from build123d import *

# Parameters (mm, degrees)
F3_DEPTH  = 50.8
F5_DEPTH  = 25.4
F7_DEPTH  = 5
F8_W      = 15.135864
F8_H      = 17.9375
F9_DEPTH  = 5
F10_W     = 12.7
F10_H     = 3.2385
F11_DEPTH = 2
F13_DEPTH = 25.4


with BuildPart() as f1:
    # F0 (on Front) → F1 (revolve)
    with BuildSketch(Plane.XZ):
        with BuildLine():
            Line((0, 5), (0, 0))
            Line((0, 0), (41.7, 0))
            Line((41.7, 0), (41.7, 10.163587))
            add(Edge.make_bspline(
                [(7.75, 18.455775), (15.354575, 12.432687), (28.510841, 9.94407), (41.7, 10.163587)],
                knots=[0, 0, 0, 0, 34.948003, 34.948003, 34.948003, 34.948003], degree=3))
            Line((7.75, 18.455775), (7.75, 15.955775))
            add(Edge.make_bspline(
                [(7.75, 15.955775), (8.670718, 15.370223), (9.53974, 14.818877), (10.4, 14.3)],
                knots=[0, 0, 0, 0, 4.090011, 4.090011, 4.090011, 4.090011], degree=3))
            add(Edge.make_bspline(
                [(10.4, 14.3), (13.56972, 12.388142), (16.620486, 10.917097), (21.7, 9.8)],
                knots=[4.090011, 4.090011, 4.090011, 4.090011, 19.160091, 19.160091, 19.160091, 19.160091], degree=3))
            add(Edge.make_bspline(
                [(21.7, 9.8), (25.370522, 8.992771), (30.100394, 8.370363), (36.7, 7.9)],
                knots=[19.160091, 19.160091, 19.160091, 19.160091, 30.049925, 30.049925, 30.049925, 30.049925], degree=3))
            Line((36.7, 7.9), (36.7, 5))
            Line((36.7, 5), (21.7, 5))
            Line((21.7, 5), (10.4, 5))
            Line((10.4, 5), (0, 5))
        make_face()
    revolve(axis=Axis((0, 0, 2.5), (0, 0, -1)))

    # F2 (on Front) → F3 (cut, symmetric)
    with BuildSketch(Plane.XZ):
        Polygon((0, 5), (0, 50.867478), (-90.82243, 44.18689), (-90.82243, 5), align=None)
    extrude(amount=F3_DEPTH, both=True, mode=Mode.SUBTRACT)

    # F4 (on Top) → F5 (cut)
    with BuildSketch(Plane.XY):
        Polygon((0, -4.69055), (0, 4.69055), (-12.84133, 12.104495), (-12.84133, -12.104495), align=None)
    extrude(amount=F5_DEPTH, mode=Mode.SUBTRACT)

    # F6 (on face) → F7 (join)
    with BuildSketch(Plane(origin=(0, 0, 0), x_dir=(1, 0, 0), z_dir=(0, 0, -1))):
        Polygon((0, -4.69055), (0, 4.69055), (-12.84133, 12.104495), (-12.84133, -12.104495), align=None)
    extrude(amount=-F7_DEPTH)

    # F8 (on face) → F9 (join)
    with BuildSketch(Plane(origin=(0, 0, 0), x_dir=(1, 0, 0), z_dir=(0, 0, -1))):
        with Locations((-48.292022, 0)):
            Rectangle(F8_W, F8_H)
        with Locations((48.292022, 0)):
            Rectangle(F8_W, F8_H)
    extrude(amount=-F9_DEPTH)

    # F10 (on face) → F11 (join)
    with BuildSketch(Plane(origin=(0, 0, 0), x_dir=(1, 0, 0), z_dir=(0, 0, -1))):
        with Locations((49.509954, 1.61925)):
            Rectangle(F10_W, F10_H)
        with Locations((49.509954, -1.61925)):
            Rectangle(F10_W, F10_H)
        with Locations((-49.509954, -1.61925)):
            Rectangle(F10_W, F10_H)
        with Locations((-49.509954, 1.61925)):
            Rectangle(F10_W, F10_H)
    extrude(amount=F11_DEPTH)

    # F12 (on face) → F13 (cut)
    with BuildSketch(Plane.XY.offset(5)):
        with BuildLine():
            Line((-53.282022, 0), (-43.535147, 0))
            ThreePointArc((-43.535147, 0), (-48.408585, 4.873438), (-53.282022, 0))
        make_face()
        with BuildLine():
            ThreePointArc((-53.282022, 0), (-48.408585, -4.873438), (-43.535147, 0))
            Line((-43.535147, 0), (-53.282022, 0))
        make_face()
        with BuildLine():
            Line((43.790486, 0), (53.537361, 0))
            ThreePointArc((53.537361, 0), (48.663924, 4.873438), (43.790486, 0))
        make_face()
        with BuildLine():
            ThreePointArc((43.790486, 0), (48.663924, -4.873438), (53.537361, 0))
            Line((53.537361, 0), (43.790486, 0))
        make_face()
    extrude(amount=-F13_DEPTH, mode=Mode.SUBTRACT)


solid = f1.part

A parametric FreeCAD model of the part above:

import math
import FreeCAD as App
import Part
import Sketcher
from FreeCAD import Vector
Q = App.Units.Quantity

doc = App.newDocument("Part")
body = doc.addObject("PartDesign::Body", "Body")

# Sketch on XZ plane
sketch1 = body.newObject("Sketcher::SketchObject", "Sketch")
sketch1.AttachmentSupport = (doc.getObject("XZ_Plane"), [""])
sketch1.MapMode = "FlatFace"
sketch1.addGeometry([
    Part.LineSegment(Vector(0, 5, 0), Vector(0, 0, 0)),  # 0
    Part.LineSegment(Vector(0, 0, 0), Vector(41.7, 0, 0)),  # 1
    Part.LineSegment(Vector(41.7, 0, 0), Vector(41.7, 10.163587, 0)),  # 2
    Part.BSplineCurve([Vector(7.75, 18.455775, 0), Vector(15.354575, 12.432687, 0), Vector(28.510841, 9.94407, 0), Vector(41.7, 10.163587, 0)], [4, 4], [0, 34.948003], False, 3, [1, 1, 1, 1], False),  # 3
    Part.LineSegment(Vector(7.75, 18.455775, 0), Vector(7.75, 15.955775, 0)),  # 4
    Part.BSplineCurve([Vector(7.75, 15.955775, 0), Vector(8.670718, 15.370223, 0), Vector(9.53974, 14.818877, 0), Vector(10.4, 14.3, 0)], [4, 4], [0, 4.090011], False, 3, [1, 1, 1, 1], False),  # 5
    Part.BSplineCurve([Vector(10.4, 14.3, 0), Vector(13.56972, 12.388142, 0), Vector(16.620486, 10.917097, 0), Vector(21.7, 9.8, 0)], [4, 4], [4.090011, 19.160091], False, 3, [1, 1, 1, 1], False),  # 6
    Part.BSplineCurve([Vector(21.7, 9.8, 0), Vector(25.370522, 8.992771, 0), Vector(30.100394, 8.370363, 0), Vector(36.7, 7.9, 0)], [4, 4], [19.160091, 30.049925], False, 3, [1, 1, 1, 1], False),  # 7
    Part.LineSegment(Vector(36.7, 7.9, 0), Vector(36.7, 5, 0)),  # 8
    Part.LineSegment(Vector(36.7, 5, 0), Vector(0, 5, 0)),  # 9
], False)
sketch1.addConstraint([
    Sketcher.Constraint("Block", 3),
    Sketcher.Constraint("Block", 5),
    Sketcher.Constraint("Block", 6),
    Sketcher.Constraint("Block", 7),
    Sketcher.Constraint("Coincident", 0, 2, 1, 1),
    Sketcher.Constraint("Coincident", 1, 2, 2, 1),
    Sketcher.Constraint("Coincident", 2, 2, 3, 2),
    Sketcher.Constraint("Coincident", 3, 1, 4, 1),
    Sketcher.Constraint("Coincident", 4, 2, 5, 1),
    Sketcher.Constraint("Coincident", 7, 2, 8, 1),
    Sketcher.Constraint("Coincident", 8, 2, 9, 1),
    Sketcher.Constraint("Coincident", 9, 2, 0, 1),
    Sketcher.Constraint("Vertical", 0),
    Sketcher.Constraint("Horizontal", 1),
    Sketcher.Constraint("Vertical", 2),
    Sketcher.Constraint("Vertical", 8),
    Sketcher.Constraint("Horizontal", 9),
    Sketcher.Constraint("Coincident", 0, 2, -1, 1),
    Sketcher.Constraint("DistanceY", 0, 2, 0, 1, 5.0),
])
revolution = body.newObject("PartDesign::Revolution", "Revolution")
revolution.Profile = sketch1
revolution.ReferenceAxis = (sketch1, ["V_Axis"])
revolution.Angle = 360

# Sketch on XZ plane
sketch2 = body.newObject("Sketcher::SketchObject", "Sketch001")
sketch2.AttachmentSupport = (doc.getObject("XZ_Plane"), [""])
sketch2.MapMode = "FlatFace"
sketch2.addGeometry([
    Part.LineSegment(Vector(0, 5, 0), Vector(0, 50.867478, 0)),
    Part.LineSegment(Vector(0, 50.867478, 0), Vector(-90.82243, 44.18689, 0)),
    Part.LineSegment(Vector(-90.82243, 44.18689, 0), Vector(-90.82243, 5, 0)),
    Part.LineSegment(Vector(-90.82243, 5, 0), Vector(0, 5, 0)),
], False)
sketch2.addConstraint([
    Sketcher.Constraint("Coincident", 0, 2, 1, 1),
    Sketcher.Constraint("Coincident", 1, 2, 2, 1),
    Sketcher.Constraint("Coincident", 2, 2, 3, 1),
    Sketcher.Constraint("Coincident", 3, 2, 0, 1),
    Sketcher.Constraint("Vertical", 0),
    Sketcher.Constraint("Vertical", 2),
    Sketcher.Constraint("Horizontal", 3),
    Sketcher.Constraint("PointOnObject", 0, 2, -2),
    Sketcher.Constraint("DistanceY", -1, 1, 2, 2, 5.0),
    Sketcher.Constraint("Distance", 1, 91.067799),
    Sketcher.Constraint("DistanceX", 3, 1, 3, 2, 90.82243),
    Sketcher.Constraint("DistanceY", 2, 2, 2, 1, 39.18689),
])
pocket1 = body.newObject("PartDesign::Pocket", "Pocket")
pocket1.Profile = sketch2
pocket1.Length = 101.6
pocket1.Midplane = True

# Sketch on XY plane
sketch3 = body.newObject("Sketcher::SketchObject", "Sketch002")
sketch3.AttachmentSupport = (doc.getObject("XY_Plane"), [""])
sketch3.MapMode = "FlatFace"
sketch3.addGeometry([
    Part.LineSegment(Vector(0, -4.69055, 0), Vector(0, 4.69055, 0)),
    Part.LineSegment(Vector(0, 4.69055, 0), Vector(-12.84133, 12.104495, 0)),
    Part.LineSegment(Vector(-12.84133, 12.104495, 0), Vector(-12.84133, -12.104495, 0)),
    Part.LineSegment(Vector(-12.84133, -12.104495, 0), Vector(0, -4.69055, 0)),
], False)
sketch3.addConstraint([
    Sketcher.Constraint("Coincident", 0, 2, 1, 1),
    Sketcher.Constraint("Coincident", 1, 2, 2, 1),
    Sketcher.Constraint("Coincident", 2, 2, 3, 1),
    Sketcher.Constraint("Coincident", 3, 2, 0, 1),
    Sketcher.Constraint("Vertical", 0),
    Sketcher.Constraint("Vertical", 2),
    Sketcher.Constraint("Symmetric", 0, 2, 3, 2, -1, 1),
    Sketcher.Constraint("Equal", 1, 3),
    Sketcher.Constraint("Angle", 1, Q("150.000001 deg")),
    Sketcher.Constraint("DistanceY", 0, 1, 0, 2, 9.3811),
    Sketcher.Constraint("DistanceY", 2, 2, 2, 1, 24.20899),
])
pocket2 = body.newObject("PartDesign::Pocket", "Pocket001")
pocket2.Profile = sketch3
pocket2.Length = 25.4
pocket2.Reversed = True

# Sketch on XY plane
sketch4 = body.newObject("Sketcher::SketchObject", "Sketch003")
sketch4.AttachmentSupport = (doc.getObject("XY_Plane"), [""])
sketch4.MapMode = "FlatFace"
sketch4.addGeometry([
    Part.LineSegment(Vector(0, 4.69055, 0), Vector(0, -4.69055, 0)),
    Part.LineSegment(Vector(0, -4.69055, 0), Vector(-12.84133, -12.104495, 0)),
    Part.LineSegment(Vector(-12.84133, -12.104495, 0), Vector(-12.84133, 12.104495, 0)),
    Part.LineSegment(Vector(-12.84133, 12.104495, 0), Vector(0, 4.69055, 0)),
], False)
sketch4.addConstraint([
    Sketcher.Constraint("Coincident", 0, 2, 1, 1),
    Sketcher.Constraint("Coincident", 1, 2, 2, 1),
    Sketcher.Constraint("Coincident", 2, 2, 3, 1),
    Sketcher.Constraint("Coincident", 3, 2, 0, 1),
    Sketcher.Constraint("Vertical", 0),
    Sketcher.Constraint("Vertical", 2),
    Sketcher.Constraint("Symmetric", 0, 2, 3, 2, -1, 1),
    Sketcher.Constraint("Equal", 1, 3),
    Sketcher.Constraint("Angle", 1, Q("-150.000001 deg")),
    Sketcher.Constraint("DistanceY", 0, 2, 0, 1, 9.3811),
    Sketcher.Constraint("DistanceY", 2, 1, 2, 2, 24.20899),
])
pad1 = body.newObject("PartDesign::Pad", "Pad")
pad1.Profile = sketch4
pad1.Length = 5

# Sketch on XY plane
sketch5 = body.newObject("Sketcher::SketchObject", "Sketch004")
sketch5.AttachmentSupport = (doc.getObject("XY_Plane"), [""])
sketch5.MapMode = "FlatFace"
sketch5.addGeometry([
    Part.LineSegment(Vector(-55.859954, -8.96875, 0), Vector(-55.859954, 8.96875, 0)),  # 0
    Part.LineSegment(Vector(-55.859954, 8.96875, 0), Vector(-40.72409, 8.96875, 0)),  # 1
    Part.LineSegment(Vector(-40.72409, 8.96875, 0), Vector(-40.72409, -8.96875, 0)),  # 2
    Part.LineSegment(Vector(-40.72409, -8.96875, 0), Vector(-55.859954, -8.96875, 0)),  # 3
    Part.LineSegment(Vector(40.72409, -8.96875, 0), Vector(40.72409, 8.96875, 0)),  # 4
    Part.LineSegment(Vector(40.72409, 8.96875, 0), Vector(55.859954, 8.96875, 0)),  # 5
    Part.LineSegment(Vector(55.859954, 8.96875, 0), Vector(55.859954, -8.96875, 0)),  # 6
    Part.LineSegment(Vector(55.859954, -8.96875, 0), Vector(40.72409, -8.96875, 0)),  # 7
], False)
sketch5.addConstraint([
    Sketcher.Constraint("Coincident", 0, 2, 1, 1),
    Sketcher.Constraint("Coincident", 1, 2, 2, 1),
    Sketcher.Constraint("Coincident", 2, 2, 3, 1),
    Sketcher.Constraint("Coincident", 3, 2, 0, 1),
    Sketcher.Constraint("Coincident", 4, 2, 5, 1),
    Sketcher.Constraint("Coincident", 5, 2, 6, 1),
    Sketcher.Constraint("Coincident", 6, 2, 7, 1),
    Sketcher.Constraint("Coincident", 7, 2, 4, 1),
    Sketcher.Constraint("Vertical", 0),
    Sketcher.Constraint("Horizontal", 1),
    Sketcher.Constraint("Vertical", 2),
    Sketcher.Constraint("Horizontal", 3),
    Sketcher.Constraint("Vertical", 4),
    Sketcher.Constraint("Horizontal", 5),
    Sketcher.Constraint("Vertical", 6),
    Sketcher.Constraint("Horizontal", 7),
    Sketcher.Constraint("Symmetric", 2, 2, 4, 2, -1, 1),
    Sketcher.Constraint("Symmetric", 0, 2, 6, 2, -1, 1),
    Sketcher.Constraint("Horizontal", 1, 2, 4, 2),
    Sketcher.Constraint("DistanceY", 0, 1, 0, 2, 17.9375),
    Sketcher.Constraint("DistanceX", 1, 1, 1, 2, 15.135864),
    Sketcher.Constraint("DistanceX", 1, 2, -1, 1, 40.72409),
])
pad2 = body.newObject("PartDesign::Pad", "Pad001")
pad2.Profile = sketch5
pad2.Length = 5

# Sketch on XY plane
sketch6 = body.newObject("Sketcher::SketchObject", "Sketch005")
sketch6.AttachmentSupport = (doc.getObject("XY_Plane"), [""])
sketch6.MapMode = "FlatFace"
sketch6.addGeometry([
    Part.LineSegment(Vector(43.159954, -3.2385, 0), Vector(43.159954, 3.2385, 0)),  # 0
    Part.LineSegment(Vector(43.159954, 3.2385, 0), Vector(55.859954, 3.2385, 0)),  # 1
    Part.LineSegment(Vector(55.859954, 3.2385, 0), Vector(55.859954, -3.2385, 0)),  # 2
    Part.LineSegment(Vector(55.859954, -3.2385, 0), Vector(43.159954, -3.2385, 0)),  # 3
    Part.LineSegment(Vector(-55.859954, 3.2385, 0), Vector(-43.159954, 3.2385, 0)),  # 4
    Part.LineSegment(Vector(-43.159954, 3.2385, 0), Vector(-43.159954, -3.2385, 0)),  # 5
    Part.LineSegment(Vector(-43.159954, -3.2385, 0), Vector(-55.859954, -3.2385, 0)),  # 6
    Part.LineSegment(Vector(-55.859954, -3.2385, 0), Vector(-55.859954, 3.2385, 0)),  # 7
], False)
sketch6.addConstraint([
    Sketcher.Constraint("Coincident", 0, 2, 1, 1),
    Sketcher.Constraint("Coincident", 1, 2, 2, 1),
    Sketcher.Constraint("Coincident", 2, 2, 3, 1),
    Sketcher.Constraint("Coincident", 3, 2, 0, 1),
    Sketcher.Constraint("Coincident", 4, 2, 5, 1),
    Sketcher.Constraint("Coincident", 5, 2, 6, 1),
    Sketcher.Constraint("Coincident", 6, 2, 7, 1),
    Sketcher.Constraint("Coincident", 7, 2, 4, 1),
    Sketcher.Constraint("Vertical", 0),
    Sketcher.Constraint("Horizontal", 1),
    Sketcher.Constraint("Vertical", 2),
    Sketcher.Constraint("Horizontal", 3),
    Sketcher.Constraint("Horizontal", 4),
    Sketcher.Constraint("Vertical", 5),
    Sketcher.Constraint("Horizontal", 6),
    Sketcher.Constraint("Vertical", 7),
    Sketcher.Constraint("Symmetric", 3, 2, 4, 2, -1, 1),
    Sketcher.Constraint("Symmetric", 1, 2, 6, 2, -1, 1),
    Sketcher.Constraint("Horizontal", 1, 2, 4, 2),
    Sketcher.Constraint("DistanceX", 1, 1, 1, 2, 12.7),
    Sketcher.Constraint("DistanceY", 0, 1, 0, 2, 6.477),
    Sketcher.Constraint("DistanceX", 4, 2, 0, 2, 86.319908),
])
pad3 = body.newObject("PartDesign::Pad", "Pad002")
pad3.Profile = sketch6
pad3.Length = 2
pad3.Reversed = True

# Sketch on XY plane
sketch7 = body.newObject("Sketcher::SketchObject", "Sketch006")
sketch7.AttachmentSupport = (doc.getObject("XY_Plane"), [""])
sketch7.MapMode = "FlatFace"
sketch7.AttachmentOffset = App.Placement(Vector(0, 0, 5), App.Rotation())
sketch7.addGeometry([
    Part.ArcOfCircle(Part.Circle(Vector(-48.408585, 0, 0), Vector(0, 0, 1), 4.873437), math.radians(-0.000006), math.radians(180.000006)),
    Part.ArcOfCircle(Part.Circle(Vector(-48.408585, 0, 0), Vector(0, 0, 1), 4.873437), math.radians(179.999994), math.radians(360.000006)),
    Part.ArcOfCircle(Part.Circle(Vector(48.663924, 0, 0), Vector(0, 0, 1), 4.873437), math.radians(-0.000006), math.radians(180.000006)),
    Part.ArcOfCircle(Part.Circle(Vector(48.663924, 0, 0), Vector(0, 0, 1), 4.873437), math.radians(179.999994), math.radians(360.000006)),
], False)
sketch7.addConstraint([
    Sketcher.Constraint("Tangent", 0, 1, 1, 2),
    Sketcher.Constraint("Coincident", 1, 1, 0, 2),
    Sketcher.Constraint("Tangent", 2, 1, 3, 2),
    Sketcher.Constraint("Coincident", 3, 1, 2, 2),
    Sketcher.Constraint("Equal", 1, 2),
    Sketcher.Constraint("PointOnObject", 0, 3, -1),
    Sketcher.Constraint("PointOnObject", 2, 3, -1),
    Sketcher.Constraint("PointOnObject", 0, 1, -1),
    Sketcher.Constraint("PointOnObject", 1, 1, -1),
    Sketcher.Constraint("PointOnObject", 2, 1, -1),
    Sketcher.Constraint("PointOnObject", 3, 1, -1),
    Sketcher.Constraint("Radius", 0, 4.873437),
    Sketcher.Constraint("DistanceX", 1, 1, -1, 1, 53.282022),
    Sketcher.Constraint("DistanceX", -1, 1, 2, 1, 53.537361),
])
pocket3 = body.newObject("PartDesign::Pocket", "Pocket002")
pocket3.Profile = sketch7
pocket3.Length = 25.4

doc.recompute()
